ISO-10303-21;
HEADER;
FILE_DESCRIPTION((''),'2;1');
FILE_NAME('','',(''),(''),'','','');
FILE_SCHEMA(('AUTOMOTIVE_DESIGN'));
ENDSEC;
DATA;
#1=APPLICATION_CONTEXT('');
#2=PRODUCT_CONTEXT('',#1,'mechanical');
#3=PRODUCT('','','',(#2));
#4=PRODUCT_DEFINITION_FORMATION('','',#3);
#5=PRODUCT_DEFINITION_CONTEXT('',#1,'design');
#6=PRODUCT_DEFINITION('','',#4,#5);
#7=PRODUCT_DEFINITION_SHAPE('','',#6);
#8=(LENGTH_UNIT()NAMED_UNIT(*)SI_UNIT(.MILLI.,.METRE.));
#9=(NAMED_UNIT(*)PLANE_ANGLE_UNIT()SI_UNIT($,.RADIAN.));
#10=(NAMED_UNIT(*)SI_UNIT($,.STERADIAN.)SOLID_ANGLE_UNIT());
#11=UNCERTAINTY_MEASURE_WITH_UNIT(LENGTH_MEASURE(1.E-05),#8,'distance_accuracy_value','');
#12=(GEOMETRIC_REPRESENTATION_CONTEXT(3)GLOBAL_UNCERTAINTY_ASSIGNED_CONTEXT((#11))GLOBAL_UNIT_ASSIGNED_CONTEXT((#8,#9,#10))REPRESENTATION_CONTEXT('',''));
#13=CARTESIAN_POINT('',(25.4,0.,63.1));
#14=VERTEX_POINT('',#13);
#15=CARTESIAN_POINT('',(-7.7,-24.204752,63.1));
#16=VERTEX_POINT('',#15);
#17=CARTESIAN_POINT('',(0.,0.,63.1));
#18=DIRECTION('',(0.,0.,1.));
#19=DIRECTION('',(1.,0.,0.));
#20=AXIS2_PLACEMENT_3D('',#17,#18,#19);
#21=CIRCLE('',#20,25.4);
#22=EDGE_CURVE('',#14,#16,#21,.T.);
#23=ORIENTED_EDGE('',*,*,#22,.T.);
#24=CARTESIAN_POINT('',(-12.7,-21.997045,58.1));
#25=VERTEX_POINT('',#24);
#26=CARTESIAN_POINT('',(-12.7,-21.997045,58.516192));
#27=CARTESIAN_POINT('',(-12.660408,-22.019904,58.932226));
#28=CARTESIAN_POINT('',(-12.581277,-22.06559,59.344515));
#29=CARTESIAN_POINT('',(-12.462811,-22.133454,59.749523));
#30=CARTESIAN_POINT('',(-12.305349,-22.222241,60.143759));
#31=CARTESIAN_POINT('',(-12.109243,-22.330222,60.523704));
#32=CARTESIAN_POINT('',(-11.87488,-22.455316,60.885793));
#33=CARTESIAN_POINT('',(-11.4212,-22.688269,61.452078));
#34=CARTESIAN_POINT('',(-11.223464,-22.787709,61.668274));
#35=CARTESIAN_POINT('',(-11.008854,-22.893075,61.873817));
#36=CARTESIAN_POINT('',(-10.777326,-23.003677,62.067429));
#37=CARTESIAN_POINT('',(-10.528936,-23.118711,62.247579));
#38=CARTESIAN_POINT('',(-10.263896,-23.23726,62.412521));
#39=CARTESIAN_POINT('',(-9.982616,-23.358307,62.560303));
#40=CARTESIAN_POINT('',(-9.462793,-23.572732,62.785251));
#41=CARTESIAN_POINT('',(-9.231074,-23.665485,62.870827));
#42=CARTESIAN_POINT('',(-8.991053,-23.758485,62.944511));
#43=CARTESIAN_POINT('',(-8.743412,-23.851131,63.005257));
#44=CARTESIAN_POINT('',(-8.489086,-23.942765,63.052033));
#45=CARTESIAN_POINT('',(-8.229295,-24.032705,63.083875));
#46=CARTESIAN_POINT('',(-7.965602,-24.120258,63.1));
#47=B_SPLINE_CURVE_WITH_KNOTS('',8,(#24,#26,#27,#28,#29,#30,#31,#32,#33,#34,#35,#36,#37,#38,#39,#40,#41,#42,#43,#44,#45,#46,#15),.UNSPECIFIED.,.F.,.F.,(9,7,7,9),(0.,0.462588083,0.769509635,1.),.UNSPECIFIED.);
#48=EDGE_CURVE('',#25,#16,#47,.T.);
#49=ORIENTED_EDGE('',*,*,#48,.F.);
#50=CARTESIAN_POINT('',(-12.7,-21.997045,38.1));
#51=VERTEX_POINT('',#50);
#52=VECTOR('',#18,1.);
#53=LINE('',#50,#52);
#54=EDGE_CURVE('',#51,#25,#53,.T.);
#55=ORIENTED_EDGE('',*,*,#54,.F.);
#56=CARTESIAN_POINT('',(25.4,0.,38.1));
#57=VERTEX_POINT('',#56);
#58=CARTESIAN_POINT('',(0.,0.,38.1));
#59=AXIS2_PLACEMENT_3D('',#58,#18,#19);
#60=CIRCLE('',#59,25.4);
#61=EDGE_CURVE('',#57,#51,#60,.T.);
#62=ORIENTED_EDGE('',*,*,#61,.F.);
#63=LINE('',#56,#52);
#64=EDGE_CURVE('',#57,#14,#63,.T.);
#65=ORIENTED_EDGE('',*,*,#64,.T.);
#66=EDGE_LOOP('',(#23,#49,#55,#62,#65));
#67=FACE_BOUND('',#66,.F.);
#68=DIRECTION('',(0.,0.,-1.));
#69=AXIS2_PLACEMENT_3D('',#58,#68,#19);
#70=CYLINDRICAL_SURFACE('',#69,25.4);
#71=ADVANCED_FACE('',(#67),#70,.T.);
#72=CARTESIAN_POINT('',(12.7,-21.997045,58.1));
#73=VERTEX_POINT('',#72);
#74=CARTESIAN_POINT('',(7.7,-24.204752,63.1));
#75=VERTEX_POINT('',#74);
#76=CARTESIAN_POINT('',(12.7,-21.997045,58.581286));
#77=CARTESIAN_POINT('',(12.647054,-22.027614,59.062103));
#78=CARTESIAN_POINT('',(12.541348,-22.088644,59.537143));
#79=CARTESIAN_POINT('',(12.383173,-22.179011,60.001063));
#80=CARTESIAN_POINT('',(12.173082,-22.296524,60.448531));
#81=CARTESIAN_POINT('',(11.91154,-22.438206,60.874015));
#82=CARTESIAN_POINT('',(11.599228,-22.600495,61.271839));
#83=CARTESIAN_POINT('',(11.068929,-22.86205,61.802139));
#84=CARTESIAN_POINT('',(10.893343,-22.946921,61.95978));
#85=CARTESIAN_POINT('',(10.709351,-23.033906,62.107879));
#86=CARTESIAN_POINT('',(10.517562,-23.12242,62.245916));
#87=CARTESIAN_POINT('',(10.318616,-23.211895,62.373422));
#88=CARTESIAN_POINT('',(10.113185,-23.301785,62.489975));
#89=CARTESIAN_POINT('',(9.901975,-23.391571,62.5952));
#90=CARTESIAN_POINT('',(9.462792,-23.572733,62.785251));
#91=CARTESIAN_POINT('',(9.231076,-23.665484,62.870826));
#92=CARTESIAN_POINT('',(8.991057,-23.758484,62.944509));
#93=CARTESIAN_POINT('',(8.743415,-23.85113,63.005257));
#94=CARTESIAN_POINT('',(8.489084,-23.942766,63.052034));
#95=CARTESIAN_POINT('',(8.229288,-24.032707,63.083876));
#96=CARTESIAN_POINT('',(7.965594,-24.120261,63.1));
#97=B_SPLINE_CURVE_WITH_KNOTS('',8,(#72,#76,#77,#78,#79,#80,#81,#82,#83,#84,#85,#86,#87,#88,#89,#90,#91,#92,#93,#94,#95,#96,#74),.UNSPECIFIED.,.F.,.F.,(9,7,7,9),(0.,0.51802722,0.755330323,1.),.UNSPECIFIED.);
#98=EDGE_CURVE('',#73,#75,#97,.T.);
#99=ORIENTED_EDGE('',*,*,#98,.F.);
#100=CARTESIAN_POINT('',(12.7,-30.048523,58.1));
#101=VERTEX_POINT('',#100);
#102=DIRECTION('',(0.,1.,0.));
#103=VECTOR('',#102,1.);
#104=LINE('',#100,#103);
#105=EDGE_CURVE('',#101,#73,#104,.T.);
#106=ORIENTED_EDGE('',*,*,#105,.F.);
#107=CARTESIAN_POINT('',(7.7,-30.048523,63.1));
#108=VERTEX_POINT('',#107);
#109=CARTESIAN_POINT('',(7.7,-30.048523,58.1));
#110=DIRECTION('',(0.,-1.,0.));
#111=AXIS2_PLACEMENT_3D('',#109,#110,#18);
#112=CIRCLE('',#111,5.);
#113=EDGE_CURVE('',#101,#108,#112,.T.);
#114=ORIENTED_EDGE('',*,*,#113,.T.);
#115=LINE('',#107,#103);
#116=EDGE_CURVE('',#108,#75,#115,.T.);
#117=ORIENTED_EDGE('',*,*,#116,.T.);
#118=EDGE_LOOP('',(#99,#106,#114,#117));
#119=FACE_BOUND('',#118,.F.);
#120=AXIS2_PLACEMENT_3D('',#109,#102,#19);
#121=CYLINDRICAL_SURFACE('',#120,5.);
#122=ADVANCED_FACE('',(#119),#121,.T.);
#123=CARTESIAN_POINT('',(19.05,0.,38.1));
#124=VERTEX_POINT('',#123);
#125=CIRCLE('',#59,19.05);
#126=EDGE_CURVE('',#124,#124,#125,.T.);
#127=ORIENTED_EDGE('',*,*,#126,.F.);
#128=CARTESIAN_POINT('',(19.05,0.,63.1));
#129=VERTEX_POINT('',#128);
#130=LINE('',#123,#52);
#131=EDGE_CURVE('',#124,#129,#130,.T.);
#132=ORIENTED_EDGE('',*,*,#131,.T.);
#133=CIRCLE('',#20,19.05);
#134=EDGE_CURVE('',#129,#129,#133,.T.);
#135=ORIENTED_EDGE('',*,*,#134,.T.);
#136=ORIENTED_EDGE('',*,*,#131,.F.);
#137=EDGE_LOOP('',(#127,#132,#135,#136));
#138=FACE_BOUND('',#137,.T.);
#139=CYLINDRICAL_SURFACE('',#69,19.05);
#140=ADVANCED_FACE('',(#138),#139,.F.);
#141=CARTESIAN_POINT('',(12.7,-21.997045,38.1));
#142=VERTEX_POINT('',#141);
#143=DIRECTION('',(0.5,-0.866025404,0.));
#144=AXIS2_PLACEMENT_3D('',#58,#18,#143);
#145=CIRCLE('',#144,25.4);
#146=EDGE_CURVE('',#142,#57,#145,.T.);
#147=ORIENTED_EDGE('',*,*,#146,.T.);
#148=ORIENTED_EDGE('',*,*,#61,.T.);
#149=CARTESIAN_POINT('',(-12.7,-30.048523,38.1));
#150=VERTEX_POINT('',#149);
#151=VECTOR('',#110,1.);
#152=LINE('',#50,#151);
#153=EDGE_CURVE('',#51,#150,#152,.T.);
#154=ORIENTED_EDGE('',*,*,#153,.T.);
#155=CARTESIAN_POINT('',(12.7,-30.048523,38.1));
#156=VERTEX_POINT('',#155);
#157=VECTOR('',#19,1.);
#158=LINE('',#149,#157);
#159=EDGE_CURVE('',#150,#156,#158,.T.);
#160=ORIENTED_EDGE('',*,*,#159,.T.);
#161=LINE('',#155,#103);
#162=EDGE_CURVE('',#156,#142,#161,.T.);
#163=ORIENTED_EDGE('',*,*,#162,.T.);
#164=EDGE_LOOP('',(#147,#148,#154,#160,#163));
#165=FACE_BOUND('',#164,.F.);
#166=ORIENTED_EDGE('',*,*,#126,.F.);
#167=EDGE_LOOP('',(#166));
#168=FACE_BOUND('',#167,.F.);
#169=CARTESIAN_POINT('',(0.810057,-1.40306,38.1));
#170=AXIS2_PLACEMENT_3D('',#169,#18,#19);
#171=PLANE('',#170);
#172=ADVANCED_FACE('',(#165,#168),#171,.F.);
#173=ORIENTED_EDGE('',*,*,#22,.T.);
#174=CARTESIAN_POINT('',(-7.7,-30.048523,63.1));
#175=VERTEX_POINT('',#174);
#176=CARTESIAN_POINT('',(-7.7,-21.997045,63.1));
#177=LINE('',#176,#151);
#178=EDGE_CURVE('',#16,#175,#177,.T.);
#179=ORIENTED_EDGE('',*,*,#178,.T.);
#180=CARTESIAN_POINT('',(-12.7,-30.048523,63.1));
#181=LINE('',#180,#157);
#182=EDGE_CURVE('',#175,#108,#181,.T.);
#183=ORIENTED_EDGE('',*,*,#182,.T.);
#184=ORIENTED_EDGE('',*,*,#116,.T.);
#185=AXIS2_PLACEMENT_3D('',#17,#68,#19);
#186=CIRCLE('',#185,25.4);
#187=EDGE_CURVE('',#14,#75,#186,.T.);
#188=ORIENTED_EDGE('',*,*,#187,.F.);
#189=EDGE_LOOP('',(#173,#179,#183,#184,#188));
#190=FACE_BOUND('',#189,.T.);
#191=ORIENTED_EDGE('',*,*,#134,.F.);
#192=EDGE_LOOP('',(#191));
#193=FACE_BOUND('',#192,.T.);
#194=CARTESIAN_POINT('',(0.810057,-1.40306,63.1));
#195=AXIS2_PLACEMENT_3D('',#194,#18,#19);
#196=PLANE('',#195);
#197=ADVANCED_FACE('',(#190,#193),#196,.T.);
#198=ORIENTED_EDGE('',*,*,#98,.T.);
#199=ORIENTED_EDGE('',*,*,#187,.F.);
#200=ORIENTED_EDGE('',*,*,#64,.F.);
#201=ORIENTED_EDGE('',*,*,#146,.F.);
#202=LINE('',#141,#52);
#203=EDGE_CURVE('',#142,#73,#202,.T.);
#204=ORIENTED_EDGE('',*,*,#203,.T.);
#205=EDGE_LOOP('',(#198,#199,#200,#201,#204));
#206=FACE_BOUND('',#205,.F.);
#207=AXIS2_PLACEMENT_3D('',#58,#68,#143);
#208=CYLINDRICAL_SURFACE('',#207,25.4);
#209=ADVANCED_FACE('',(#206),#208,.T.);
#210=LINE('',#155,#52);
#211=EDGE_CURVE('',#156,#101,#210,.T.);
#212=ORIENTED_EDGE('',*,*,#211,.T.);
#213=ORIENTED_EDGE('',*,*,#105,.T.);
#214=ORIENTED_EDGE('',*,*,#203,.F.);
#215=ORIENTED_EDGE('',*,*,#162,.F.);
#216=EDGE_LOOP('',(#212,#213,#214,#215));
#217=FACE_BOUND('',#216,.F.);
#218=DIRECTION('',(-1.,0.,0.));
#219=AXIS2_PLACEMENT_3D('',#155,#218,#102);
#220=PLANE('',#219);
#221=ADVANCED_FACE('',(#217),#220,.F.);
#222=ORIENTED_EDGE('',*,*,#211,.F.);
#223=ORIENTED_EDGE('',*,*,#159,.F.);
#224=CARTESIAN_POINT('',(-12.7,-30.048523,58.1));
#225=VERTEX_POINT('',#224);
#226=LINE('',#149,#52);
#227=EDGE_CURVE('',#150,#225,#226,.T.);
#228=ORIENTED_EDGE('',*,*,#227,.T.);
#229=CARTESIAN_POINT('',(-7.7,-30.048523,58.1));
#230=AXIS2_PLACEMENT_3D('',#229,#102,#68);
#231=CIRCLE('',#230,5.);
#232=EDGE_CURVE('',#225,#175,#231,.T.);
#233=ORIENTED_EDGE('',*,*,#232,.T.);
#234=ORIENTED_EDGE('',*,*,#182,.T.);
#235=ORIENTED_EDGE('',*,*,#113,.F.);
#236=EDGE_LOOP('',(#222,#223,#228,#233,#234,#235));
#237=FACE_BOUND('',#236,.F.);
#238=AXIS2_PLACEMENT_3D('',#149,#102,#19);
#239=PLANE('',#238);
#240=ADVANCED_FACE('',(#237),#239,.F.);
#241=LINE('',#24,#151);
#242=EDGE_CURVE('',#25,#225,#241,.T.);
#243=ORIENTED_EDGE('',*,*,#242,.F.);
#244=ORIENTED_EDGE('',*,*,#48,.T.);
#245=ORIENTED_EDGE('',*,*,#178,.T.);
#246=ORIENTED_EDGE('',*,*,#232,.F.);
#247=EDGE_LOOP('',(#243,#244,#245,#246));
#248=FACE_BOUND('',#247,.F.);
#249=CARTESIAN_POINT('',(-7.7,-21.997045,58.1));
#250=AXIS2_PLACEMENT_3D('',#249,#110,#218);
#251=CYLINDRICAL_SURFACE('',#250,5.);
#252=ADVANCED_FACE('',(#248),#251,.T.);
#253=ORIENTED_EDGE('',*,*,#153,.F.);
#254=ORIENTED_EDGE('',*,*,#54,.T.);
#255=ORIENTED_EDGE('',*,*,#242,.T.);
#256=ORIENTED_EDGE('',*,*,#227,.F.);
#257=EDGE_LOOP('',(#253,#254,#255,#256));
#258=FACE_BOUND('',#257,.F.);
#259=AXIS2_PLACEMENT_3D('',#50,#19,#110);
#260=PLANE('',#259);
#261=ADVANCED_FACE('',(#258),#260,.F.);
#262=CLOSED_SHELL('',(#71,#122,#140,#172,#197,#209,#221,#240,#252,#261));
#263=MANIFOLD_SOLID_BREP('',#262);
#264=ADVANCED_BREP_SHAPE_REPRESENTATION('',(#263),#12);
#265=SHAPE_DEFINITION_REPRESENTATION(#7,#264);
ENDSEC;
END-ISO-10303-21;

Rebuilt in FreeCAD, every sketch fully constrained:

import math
import FreeCAD as App
import Part
import Sketcher

V = App.Vector
Q = App.Units.Quantity


def edges_at(feature, points):
    """Names of the edges that pass closest to the given points."""
    edges = feature.Shape.Edges
    near = lambda p: min(range(len(edges)), key=lambda i: edges[i].distToShape(Part.Vertex(*p))[0])
    return sorted({f"Edge{near(p) + 1}" for p in points})

doc = App.newDocument("Part")
body = doc.addObject("PartDesign::Body", "Body")

sketch1 = body.newObject("Sketcher::SketchObject", "Sketch")
sketch1.AttachmentSupport = (doc.getObject("XY_Plane"), [""])
sketch1.MapMode = "FlatFace"
sketch1.AttachmentOffset = App.Placement(V(0, 0, 1.5 * 25.4), App.Rotation())
sketch1.addGeometry([
    Part.ArcOfCircle(Part.Circle(V(0, 0, 0), V(0, 0, 1), 25.4), math.radians(-60), math.radians(0)),
    Part.ArcOfCircle(Part.Circle(V(0, 0, 0), V(0, 0, 1), 25.4), math.radians(0), math.radians(240)),
    Part.LineSegment(V(-12.7, -21.997045, 0), V(-12.7, -30.048523, 0)),
    Part.LineSegment(V(-12.7, -30.048523, 0), V(12.7, -30.048523, 0)),
    Part.LineSegment(V(12.7, -30.048523, 0), V(12.7, -21.997045, 0)),
    Part.Circle(V(0, 0, 0), V(0, 0, 1), 19.05),
], False)
sketch1.addConstraint([
    Sketcher.Constraint("Tangent", 0, 2, 1, 1),
    Sketcher.Constraint("Coincident", 1, 2, 2, 1),
    Sketcher.Constraint("Coincident", 2, 2, 3, 1),
    Sketcher.Constraint("Coincident", 3, 2, 4, 1),
    Sketcher.Constraint("Coincident", 4, 2, 0, 1),
    Sketcher.Constraint("Vertical", 2),
    Sketcher.Constraint("Horizontal", 3),
    Sketcher.Constraint("Vertical", 4),
    Sketcher.Constraint("Coincident", 0, 3, -1, 1),
    Sketcher.Constraint("Coincident", 5, 3, -1, 1),
    Sketcher.Constraint("Equal", 0, 1),
    Sketcher.Constraint("PointOnObject", 0, 2, -1),
    Sketcher.Constraint("Horizontal", 1, 2, 4, 2),
    Sketcher.Constraint("Radius", 0, Q("1 in")),
    Sketcher.Constraint("Diameter", 5, Q("1.5 in")),
    Sketcher.Constraint("DistanceX", 3, 1, 3, 2, Q("1 in")),
    Sketcher.Constraint("DistanceY", 2, 2, 2, 1, Q("8.051477 mm")),
])
pad1 = body.newObject("PartDesign::Pad", "Pad")
pad1.Profile = sketch1
pad1.Length = 25
doc.recompute()

fillet = body.newObject("PartDesign::Fillet", "Fillet")
fillet.Base = (pad1, edges_at(pad1, [(-12.7, -26.023, 63.1), (12.7, -26.023, 63.1)]))
fillet.Radius = 5

doc.recompute()
